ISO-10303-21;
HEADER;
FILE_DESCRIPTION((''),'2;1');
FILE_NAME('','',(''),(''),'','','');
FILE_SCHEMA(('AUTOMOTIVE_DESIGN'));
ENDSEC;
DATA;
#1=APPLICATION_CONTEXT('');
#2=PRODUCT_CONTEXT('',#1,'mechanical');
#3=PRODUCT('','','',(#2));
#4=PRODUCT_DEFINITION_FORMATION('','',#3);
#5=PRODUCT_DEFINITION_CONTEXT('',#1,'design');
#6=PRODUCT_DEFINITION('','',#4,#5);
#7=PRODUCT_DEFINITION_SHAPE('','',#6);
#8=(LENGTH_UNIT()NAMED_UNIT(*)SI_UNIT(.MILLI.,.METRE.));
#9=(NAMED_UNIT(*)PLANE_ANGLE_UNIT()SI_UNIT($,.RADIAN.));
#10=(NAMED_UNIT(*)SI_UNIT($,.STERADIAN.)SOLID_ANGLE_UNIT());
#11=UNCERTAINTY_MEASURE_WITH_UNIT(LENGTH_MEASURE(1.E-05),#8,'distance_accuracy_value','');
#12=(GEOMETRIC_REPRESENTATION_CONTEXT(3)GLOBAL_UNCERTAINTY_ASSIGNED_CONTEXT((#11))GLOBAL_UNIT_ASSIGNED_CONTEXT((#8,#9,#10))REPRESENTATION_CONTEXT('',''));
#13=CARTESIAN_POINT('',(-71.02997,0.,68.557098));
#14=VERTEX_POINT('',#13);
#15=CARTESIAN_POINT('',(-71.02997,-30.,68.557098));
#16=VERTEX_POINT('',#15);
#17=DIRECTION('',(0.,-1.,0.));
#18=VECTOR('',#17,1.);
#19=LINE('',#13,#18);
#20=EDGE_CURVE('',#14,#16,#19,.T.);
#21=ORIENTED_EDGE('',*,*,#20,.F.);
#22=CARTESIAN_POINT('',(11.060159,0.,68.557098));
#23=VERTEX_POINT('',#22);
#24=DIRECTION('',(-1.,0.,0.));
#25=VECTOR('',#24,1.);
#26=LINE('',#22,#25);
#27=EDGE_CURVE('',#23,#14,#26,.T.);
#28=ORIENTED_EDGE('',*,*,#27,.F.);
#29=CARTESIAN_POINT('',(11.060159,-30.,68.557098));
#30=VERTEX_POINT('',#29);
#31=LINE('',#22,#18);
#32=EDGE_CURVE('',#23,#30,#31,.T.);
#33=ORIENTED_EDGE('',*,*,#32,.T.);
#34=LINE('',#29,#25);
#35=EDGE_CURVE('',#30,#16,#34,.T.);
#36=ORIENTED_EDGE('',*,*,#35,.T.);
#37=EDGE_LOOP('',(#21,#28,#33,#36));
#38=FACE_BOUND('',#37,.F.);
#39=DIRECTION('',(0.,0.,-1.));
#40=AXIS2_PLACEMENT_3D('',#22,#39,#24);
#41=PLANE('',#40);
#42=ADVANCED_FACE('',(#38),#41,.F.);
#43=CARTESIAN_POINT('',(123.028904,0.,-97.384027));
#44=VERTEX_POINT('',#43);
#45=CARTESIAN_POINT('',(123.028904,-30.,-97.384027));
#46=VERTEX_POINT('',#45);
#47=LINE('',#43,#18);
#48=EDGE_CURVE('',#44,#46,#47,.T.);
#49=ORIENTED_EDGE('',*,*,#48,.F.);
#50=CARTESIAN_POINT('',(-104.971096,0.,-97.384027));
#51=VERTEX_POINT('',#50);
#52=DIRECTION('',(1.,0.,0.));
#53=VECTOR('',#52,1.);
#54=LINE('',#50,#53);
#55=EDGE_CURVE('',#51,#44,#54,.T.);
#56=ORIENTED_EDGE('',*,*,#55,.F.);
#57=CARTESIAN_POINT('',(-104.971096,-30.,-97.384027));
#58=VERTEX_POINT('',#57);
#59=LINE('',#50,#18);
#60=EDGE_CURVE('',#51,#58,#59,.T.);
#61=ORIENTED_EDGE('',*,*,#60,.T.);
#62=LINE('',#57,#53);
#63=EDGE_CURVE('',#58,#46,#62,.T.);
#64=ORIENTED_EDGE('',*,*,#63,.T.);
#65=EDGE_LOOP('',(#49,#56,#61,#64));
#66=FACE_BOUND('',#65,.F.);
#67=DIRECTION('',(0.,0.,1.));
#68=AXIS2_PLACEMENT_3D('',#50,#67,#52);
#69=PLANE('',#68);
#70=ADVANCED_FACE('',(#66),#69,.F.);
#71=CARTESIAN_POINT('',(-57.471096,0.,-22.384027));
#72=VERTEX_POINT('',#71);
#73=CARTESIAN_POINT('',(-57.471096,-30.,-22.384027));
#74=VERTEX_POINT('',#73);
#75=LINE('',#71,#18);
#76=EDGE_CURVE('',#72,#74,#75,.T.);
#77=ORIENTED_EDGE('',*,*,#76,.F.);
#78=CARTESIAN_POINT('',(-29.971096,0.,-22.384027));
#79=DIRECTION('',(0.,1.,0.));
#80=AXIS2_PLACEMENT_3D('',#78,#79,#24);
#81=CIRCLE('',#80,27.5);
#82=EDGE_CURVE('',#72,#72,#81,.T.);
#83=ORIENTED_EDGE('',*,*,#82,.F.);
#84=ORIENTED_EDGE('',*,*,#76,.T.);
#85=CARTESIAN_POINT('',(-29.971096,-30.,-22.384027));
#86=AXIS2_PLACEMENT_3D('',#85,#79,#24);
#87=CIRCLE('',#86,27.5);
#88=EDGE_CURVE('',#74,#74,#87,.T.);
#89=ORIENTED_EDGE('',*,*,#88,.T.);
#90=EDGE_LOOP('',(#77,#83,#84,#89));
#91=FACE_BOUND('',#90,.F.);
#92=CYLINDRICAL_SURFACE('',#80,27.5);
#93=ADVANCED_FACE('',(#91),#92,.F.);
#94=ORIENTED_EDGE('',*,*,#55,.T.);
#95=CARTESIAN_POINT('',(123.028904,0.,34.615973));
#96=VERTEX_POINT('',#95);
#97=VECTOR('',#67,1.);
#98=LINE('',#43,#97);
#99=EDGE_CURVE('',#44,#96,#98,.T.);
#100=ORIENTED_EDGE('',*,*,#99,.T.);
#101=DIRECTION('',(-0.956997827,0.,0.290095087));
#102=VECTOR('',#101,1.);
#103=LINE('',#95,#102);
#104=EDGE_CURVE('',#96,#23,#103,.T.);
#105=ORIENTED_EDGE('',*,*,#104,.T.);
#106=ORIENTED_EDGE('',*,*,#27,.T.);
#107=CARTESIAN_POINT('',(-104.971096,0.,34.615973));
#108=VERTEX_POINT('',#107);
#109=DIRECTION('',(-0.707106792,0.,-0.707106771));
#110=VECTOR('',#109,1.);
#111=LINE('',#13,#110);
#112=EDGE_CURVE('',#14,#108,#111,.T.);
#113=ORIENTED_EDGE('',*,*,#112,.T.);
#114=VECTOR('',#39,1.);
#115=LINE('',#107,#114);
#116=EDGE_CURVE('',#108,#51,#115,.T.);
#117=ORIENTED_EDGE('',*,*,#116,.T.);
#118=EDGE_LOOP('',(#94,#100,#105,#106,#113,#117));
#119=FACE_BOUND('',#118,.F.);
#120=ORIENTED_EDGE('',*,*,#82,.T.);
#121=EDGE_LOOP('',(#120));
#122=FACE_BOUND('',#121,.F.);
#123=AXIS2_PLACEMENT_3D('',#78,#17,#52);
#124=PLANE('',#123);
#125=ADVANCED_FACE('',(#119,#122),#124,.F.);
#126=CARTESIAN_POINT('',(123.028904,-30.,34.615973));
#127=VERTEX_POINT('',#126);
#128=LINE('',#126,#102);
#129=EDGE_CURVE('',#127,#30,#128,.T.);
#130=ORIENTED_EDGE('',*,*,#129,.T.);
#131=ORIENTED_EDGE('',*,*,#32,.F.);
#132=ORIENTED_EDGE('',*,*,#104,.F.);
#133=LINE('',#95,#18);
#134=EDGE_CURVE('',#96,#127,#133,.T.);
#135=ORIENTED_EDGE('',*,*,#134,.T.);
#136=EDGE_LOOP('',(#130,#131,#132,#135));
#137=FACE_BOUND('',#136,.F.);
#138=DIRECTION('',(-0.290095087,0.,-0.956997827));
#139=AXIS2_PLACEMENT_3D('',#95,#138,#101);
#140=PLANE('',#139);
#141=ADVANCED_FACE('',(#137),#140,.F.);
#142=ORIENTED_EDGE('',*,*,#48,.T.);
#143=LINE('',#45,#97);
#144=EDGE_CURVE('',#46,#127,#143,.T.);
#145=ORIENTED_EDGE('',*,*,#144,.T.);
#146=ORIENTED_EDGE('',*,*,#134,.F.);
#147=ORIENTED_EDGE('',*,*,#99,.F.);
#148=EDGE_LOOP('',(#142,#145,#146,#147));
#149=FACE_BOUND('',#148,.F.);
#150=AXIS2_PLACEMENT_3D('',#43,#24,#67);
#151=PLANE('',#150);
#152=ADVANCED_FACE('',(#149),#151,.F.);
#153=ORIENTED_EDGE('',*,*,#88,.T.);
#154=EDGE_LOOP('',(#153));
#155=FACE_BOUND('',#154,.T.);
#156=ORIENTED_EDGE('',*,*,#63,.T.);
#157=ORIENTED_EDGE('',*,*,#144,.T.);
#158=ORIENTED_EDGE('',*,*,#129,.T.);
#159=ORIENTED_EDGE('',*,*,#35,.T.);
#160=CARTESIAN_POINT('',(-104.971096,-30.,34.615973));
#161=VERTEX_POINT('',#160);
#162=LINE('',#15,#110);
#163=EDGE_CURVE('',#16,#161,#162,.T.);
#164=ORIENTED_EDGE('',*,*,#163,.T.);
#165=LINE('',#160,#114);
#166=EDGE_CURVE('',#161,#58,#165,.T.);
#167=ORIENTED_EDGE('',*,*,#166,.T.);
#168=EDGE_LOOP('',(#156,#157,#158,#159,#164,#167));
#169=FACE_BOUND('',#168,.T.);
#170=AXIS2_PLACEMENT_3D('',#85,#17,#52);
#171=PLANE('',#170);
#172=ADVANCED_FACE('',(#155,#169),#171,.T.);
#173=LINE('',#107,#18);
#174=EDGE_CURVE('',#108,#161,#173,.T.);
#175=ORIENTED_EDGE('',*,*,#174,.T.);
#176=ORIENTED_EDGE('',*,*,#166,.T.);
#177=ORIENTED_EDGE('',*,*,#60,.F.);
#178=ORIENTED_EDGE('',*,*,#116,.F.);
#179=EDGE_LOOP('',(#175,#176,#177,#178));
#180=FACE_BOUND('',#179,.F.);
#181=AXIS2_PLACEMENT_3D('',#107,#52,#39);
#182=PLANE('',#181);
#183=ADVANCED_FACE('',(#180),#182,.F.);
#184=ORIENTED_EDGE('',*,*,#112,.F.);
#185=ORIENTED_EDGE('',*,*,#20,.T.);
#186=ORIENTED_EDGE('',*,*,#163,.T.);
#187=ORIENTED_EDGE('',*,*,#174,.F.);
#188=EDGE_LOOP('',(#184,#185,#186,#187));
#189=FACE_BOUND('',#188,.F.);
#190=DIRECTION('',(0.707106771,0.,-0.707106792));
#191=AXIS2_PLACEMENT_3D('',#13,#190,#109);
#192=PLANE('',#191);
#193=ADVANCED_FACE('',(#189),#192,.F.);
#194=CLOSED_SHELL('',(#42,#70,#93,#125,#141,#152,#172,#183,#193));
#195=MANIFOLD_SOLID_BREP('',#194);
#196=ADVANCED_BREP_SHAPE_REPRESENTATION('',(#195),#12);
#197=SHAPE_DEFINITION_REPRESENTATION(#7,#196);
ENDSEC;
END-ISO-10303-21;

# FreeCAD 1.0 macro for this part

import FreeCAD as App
import Part
import Sketcher

V = App.Vector
Q = App.Units.Quantity

doc = App.newDocument("Part")
body = doc.addObject("PartDesign::Body", "Body")

# Sketch on XZ plane
sketch1 = body.newObject("Sketcher::SketchObject", "Sketch")
sketch1.AttachmentSupport = (doc.getObject("XZ_Plane"), [""])
sketch1.MapMode = "FlatFace"
sketch1.addGeometry([
    Part.LineSegment(V(-71.02997, 68.557098, 0), V(-104.971096, 34.615973, 0)),  # 0
    Part.LineSegment(V(-104.971096, 34.615973, 0), V(-104.971096, -97.384027, 0)),  # 1
    Part.LineSegment(V(-104.971096, -97.384027, 0), V(123.028904, -97.384027, 0)),  # 2
    Part.LineSegment(V(123.028904, -97.384027, 0), V(123.028904, 34.615973, 0)),  # 3
    Part.LineSegment(V(123.028904, 34.615973, 0), V(11.060159, 68.557098, 0)),  # 4
    Part.LineSegment(V(11.060159, 68.557098, 0), V(-71.02997, 68.557098, 0)),  # 5
    Part.Circle(V(-29.971096, -22.384027, 0), V(0, 0, 1), 27.5),  # 6
], False)
sketch1.addConstraint([
    Sketcher.Constraint("Coincident", 0, 2, 1, 1),
    Sketcher.Constraint("Coincident", 1, 2, 2, 1),
    Sketcher.Constraint("Coincident", 2, 2, 3, 1),
    Sketcher.Constraint("Coincident", 3, 2, 4, 1),
    Sketcher.Constraint("Coincident", 4, 2, 5, 1),
    Sketcher.Constraint("Coincident", 5, 2, 0, 1),
    Sketcher.Constraint("Vertical", 1),
    Sketcher.Constraint("Horizontal", 2),
    Sketcher.Constraint("Vertical", 3),
    Sketcher.Constraint("Horizontal", 5),
    Sketcher.Constraint("Horizontal", 0, 2, 3, 2),
    Sketcher.Constraint("Diameter", 6, 55.0),
    Sketcher.Constraint("DistanceX", 2, 1, 2, 2, 228.0),
    Sketcher.Constraint("DistanceY", 1, 2, 1, 1, 132.0),
    Sketcher.Constraint("Angle", 0, Q("-135.000001 deg")),
    Sketcher.Constraint("Distance", 0, 48.0),
    Sketcher.Constraint("Distance", 4, 116.999999),
    Sketcher.Constraint("DistanceX", 0, 2, 6, 3, 75.0),
    Sketcher.Constraint("DistanceY", 6, 3, 0, 2, 57.0),
    Sketcher.Constraint("DistanceX", -1, 1, 4, 2, 11.060159),
    Sketcher.Constraint("DistanceY", 6, 3, -1, 1, 22.384027),
])
pad1 = body.newObject("PartDesign::Pad", "Pad")
pad1.Profile = sketch1
pad1.Length = 30

doc.recompute()
